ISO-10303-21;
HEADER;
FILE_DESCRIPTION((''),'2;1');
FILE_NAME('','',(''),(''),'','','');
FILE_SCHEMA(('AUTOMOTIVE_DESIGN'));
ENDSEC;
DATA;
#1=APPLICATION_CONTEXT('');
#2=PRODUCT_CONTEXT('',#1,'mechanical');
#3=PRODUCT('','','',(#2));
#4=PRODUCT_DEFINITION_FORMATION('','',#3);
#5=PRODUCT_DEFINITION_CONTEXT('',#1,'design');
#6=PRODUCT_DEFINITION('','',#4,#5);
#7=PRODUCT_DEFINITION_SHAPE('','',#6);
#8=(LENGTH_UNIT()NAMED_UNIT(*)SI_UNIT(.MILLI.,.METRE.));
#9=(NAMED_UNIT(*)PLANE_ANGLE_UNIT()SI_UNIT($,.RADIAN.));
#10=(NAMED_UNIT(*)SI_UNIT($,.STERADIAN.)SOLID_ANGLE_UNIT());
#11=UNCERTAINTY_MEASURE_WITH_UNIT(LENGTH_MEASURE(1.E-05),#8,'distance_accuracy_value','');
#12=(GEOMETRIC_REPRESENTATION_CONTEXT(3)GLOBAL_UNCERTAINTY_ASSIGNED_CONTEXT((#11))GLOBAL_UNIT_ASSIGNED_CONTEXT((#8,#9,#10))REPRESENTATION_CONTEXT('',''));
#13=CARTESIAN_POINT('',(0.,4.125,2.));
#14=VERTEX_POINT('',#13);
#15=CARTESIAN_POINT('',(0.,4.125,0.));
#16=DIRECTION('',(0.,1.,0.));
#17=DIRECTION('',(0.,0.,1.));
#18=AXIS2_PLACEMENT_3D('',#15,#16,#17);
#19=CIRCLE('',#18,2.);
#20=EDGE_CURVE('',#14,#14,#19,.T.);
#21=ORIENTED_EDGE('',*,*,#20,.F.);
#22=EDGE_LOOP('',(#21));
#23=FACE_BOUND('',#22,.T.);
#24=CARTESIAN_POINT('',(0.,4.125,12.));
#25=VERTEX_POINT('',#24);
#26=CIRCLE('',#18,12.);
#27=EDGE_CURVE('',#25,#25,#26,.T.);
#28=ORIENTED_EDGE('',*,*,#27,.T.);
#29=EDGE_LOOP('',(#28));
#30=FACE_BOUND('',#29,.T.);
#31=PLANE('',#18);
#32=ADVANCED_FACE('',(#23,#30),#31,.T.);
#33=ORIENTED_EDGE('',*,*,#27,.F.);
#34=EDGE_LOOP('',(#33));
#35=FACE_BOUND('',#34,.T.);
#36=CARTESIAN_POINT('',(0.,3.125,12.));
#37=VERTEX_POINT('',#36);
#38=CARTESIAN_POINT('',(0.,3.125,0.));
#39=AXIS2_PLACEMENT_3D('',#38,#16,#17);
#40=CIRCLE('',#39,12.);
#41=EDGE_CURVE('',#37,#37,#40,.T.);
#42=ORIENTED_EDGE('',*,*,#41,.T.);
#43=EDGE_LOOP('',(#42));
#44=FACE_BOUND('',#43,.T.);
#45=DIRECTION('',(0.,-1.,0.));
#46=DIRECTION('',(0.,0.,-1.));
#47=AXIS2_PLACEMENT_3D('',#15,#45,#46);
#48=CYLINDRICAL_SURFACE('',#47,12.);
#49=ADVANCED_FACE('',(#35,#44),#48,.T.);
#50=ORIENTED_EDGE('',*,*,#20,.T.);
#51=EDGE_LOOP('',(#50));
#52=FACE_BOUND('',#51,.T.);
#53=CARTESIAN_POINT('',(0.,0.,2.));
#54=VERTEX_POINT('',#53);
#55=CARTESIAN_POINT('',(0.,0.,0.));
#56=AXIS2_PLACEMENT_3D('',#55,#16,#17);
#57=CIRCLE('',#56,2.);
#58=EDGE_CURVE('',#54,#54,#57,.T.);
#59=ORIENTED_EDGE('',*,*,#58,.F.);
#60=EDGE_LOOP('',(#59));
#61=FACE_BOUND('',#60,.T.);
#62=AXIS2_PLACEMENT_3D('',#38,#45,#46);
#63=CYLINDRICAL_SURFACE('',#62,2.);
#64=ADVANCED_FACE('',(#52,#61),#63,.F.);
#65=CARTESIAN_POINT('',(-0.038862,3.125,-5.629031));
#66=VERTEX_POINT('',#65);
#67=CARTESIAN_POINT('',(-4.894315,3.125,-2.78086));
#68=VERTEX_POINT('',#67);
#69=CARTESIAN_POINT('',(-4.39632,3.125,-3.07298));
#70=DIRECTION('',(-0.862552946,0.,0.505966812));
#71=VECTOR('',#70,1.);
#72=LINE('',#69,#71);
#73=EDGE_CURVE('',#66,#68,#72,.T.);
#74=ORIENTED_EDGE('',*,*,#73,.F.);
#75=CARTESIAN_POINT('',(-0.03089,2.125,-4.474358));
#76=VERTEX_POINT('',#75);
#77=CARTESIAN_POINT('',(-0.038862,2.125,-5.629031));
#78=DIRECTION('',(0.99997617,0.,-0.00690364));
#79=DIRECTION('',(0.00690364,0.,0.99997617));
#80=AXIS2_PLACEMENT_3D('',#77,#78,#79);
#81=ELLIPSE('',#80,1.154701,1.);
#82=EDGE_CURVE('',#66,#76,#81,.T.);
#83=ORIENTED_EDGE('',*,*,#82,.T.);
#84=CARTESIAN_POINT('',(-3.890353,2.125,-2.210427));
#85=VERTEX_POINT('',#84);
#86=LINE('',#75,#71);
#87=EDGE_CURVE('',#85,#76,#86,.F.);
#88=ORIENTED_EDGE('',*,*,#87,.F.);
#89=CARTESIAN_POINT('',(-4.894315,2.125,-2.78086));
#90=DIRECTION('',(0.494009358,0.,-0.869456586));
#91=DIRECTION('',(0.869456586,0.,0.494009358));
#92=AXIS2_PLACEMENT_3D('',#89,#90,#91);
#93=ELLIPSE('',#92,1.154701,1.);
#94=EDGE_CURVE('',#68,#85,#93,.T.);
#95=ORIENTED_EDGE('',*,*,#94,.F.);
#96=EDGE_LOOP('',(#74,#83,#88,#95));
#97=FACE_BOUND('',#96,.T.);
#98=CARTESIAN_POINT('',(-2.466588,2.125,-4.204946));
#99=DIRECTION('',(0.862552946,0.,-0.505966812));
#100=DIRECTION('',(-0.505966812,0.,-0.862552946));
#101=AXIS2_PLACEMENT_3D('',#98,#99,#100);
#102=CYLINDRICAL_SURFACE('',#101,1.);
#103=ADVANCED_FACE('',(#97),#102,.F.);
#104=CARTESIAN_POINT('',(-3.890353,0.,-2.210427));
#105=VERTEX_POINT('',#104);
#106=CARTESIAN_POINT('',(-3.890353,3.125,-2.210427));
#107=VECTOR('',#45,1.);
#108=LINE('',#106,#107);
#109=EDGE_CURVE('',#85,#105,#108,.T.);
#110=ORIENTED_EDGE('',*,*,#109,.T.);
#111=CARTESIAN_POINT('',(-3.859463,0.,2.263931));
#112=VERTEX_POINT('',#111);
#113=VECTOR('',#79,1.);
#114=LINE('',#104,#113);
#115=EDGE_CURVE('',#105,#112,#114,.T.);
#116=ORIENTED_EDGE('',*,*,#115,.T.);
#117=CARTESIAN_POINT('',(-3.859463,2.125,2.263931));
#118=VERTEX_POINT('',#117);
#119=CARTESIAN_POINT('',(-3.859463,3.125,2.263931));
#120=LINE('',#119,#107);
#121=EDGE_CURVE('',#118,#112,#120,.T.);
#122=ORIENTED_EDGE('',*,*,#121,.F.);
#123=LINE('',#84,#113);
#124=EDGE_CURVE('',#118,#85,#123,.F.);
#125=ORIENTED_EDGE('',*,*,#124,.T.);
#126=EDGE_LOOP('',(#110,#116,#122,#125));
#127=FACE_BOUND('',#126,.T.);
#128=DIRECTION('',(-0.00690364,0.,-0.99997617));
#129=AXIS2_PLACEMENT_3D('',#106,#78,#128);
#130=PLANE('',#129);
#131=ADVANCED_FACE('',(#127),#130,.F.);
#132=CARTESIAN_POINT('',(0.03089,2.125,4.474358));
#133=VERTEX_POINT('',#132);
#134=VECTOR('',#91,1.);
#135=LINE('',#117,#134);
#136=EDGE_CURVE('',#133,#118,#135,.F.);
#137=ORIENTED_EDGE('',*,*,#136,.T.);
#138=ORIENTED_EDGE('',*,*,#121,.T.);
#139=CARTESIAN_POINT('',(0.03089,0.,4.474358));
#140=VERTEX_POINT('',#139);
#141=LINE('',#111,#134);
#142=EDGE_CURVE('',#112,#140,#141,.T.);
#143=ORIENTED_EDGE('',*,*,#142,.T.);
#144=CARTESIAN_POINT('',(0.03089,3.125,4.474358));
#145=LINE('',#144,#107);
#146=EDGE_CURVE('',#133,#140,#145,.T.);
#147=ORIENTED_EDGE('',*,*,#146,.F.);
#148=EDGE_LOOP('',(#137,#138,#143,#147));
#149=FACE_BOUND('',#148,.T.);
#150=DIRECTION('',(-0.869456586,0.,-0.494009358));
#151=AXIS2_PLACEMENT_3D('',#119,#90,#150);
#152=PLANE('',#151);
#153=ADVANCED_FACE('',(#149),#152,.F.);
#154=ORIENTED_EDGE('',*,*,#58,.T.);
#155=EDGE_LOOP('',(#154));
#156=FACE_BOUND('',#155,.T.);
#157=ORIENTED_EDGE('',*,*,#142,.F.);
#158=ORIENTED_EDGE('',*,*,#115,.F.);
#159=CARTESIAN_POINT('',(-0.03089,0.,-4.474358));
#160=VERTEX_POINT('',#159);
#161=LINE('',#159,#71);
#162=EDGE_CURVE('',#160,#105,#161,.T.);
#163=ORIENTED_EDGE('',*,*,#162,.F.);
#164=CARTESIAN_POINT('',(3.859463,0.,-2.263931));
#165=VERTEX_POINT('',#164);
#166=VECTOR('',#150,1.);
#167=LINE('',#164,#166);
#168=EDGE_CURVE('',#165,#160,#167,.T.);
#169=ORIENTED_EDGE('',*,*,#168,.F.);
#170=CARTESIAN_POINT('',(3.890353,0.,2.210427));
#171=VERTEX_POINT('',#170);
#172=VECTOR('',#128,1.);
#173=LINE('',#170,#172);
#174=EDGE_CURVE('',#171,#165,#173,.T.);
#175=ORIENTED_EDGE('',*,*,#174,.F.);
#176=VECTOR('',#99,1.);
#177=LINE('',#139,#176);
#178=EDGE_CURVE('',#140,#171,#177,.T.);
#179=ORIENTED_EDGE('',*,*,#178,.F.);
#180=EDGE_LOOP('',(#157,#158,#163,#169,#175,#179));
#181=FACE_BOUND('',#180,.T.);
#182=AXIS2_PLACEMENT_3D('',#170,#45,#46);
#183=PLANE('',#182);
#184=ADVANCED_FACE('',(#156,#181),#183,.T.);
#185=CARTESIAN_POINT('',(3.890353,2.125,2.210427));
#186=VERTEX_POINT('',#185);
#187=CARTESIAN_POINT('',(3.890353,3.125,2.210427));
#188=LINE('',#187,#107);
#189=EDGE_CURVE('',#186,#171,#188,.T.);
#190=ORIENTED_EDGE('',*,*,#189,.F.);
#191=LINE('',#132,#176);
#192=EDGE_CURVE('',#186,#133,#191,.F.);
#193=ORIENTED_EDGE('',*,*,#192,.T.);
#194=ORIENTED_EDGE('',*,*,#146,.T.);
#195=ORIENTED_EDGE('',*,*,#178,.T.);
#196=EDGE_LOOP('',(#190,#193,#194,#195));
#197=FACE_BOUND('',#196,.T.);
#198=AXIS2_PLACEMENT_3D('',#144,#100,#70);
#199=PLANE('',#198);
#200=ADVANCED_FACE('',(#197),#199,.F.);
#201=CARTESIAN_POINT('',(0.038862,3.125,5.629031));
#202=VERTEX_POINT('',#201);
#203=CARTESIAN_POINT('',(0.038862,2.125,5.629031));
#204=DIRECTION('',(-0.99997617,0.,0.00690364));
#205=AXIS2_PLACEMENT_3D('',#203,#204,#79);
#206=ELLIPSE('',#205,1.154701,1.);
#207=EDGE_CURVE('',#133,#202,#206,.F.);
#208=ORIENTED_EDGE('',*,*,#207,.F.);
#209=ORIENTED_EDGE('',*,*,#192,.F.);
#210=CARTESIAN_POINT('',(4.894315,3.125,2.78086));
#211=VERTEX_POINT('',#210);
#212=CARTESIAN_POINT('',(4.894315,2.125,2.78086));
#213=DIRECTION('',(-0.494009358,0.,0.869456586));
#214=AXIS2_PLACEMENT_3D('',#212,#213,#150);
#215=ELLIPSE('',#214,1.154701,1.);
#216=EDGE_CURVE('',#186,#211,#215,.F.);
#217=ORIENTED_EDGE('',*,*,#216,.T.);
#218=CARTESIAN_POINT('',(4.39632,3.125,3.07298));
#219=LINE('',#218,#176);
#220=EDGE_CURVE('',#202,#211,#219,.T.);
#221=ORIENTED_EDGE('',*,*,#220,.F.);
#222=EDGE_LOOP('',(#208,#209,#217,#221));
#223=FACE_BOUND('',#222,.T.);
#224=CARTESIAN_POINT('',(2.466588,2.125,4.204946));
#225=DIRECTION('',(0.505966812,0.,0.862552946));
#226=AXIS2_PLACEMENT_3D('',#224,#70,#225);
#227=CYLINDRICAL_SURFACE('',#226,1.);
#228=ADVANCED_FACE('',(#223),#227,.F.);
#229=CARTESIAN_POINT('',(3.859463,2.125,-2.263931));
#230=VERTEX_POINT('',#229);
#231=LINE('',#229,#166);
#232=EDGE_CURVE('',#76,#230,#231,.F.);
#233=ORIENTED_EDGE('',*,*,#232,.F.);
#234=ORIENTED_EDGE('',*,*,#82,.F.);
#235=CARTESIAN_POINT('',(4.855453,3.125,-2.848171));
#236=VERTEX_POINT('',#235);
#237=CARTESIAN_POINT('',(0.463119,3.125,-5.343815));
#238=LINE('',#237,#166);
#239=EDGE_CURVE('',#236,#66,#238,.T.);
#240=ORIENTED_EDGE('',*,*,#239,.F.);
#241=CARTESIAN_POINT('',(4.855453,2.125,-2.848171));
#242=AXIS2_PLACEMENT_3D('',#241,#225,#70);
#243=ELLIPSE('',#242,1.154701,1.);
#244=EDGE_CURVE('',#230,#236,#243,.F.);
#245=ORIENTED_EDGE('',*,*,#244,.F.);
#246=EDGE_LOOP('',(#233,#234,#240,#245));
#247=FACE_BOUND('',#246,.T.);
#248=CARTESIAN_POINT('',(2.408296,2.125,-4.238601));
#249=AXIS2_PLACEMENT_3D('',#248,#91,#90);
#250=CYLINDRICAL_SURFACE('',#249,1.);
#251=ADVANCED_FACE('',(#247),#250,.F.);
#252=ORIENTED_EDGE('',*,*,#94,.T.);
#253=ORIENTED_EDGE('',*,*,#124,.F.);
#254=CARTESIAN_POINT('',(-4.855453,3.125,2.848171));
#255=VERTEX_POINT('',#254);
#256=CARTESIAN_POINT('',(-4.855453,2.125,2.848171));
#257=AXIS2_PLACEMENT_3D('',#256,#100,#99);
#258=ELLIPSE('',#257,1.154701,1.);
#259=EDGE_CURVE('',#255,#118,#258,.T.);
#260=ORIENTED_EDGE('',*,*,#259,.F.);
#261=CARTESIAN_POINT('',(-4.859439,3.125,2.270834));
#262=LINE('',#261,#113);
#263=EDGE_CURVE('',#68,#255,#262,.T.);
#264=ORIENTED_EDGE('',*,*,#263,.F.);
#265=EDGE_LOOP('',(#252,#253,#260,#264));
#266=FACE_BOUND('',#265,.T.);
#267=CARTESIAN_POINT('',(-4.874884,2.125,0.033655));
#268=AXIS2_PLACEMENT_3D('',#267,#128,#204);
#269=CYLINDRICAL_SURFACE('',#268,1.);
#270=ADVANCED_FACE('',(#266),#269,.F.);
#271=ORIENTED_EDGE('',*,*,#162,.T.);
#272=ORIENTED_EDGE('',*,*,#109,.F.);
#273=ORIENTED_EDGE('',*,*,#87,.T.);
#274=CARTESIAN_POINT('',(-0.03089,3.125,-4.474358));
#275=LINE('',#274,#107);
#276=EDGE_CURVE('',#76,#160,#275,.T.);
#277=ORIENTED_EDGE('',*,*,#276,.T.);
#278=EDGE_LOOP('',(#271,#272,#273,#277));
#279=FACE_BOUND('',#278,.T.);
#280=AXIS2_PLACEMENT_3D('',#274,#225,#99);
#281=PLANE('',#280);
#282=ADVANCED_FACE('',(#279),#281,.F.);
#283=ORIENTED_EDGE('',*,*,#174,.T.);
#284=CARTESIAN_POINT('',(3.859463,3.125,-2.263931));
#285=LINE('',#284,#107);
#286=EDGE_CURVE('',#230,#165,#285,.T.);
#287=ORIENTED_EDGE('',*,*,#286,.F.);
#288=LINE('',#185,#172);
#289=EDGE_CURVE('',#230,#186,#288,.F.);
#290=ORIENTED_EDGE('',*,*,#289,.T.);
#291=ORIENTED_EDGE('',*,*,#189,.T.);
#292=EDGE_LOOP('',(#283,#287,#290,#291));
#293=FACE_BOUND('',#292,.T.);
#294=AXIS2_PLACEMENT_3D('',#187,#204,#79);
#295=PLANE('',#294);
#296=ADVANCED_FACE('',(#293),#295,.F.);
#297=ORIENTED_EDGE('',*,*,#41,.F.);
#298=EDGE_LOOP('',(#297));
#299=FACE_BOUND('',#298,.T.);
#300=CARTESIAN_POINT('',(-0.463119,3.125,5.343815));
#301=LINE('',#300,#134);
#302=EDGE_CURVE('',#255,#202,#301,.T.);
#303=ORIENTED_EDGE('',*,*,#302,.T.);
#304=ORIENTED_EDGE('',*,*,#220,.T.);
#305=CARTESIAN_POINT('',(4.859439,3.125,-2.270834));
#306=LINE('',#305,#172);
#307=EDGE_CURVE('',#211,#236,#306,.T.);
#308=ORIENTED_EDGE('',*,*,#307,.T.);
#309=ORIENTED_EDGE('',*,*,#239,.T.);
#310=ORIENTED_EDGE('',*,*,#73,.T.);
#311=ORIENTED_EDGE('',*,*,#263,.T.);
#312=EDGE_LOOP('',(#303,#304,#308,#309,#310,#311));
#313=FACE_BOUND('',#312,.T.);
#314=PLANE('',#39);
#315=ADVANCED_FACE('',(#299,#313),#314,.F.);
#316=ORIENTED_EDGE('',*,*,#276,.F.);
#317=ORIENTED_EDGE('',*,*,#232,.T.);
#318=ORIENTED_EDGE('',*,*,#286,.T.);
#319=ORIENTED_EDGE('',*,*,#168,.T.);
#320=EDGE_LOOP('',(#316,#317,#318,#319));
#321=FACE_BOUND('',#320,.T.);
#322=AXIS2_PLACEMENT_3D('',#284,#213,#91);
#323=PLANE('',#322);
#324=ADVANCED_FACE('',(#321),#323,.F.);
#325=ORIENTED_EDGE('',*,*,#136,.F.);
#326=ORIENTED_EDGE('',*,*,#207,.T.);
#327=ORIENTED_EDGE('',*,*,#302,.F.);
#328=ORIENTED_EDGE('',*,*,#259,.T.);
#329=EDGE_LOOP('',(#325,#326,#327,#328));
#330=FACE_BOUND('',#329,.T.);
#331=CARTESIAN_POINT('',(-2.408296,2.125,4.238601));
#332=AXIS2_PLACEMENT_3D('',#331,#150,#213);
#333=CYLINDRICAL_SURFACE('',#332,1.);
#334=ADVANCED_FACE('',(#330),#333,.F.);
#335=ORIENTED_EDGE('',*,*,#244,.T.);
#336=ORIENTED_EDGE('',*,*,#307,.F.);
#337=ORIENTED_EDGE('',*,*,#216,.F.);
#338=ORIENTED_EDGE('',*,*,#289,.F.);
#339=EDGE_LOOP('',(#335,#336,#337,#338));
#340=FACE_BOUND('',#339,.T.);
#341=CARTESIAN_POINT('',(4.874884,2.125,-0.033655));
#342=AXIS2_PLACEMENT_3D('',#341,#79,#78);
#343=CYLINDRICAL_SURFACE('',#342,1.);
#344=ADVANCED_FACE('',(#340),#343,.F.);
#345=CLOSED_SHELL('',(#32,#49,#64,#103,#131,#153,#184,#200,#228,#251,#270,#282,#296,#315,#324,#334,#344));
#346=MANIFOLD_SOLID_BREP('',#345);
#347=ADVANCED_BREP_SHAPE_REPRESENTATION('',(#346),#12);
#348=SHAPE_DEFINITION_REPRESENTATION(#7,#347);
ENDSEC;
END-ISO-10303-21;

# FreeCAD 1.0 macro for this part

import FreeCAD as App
import Part
import Sketcher
from FreeCAD import Vector
Q = App.Units.Quantity


def edges_at(feature, points):
    """Names of the edges that pass closest to the given points."""
    edges = feature.Shape.Edges
    near = lambda p: min(range(len(edges)), key=lambda i: edges[i].distToShape(Part.Vertex(*p))[0])
    return sorted({f"Edge{near(p) + 1}" for p in points})


def add_polygon(sketch, points):
    """Adds a closed chain of lines whose ends are joined by coincident constraints."""
    first, n = sketch.GeometryCount, len(points)
    for a, b in zip(points, points[1:] + points[:1]):
        sketch.addGeometry(Part.LineSegment(App.Vector(*a, 0), App.Vector(*b, 0)), False)
    for i in range(n):
        sketch.addConstraint(Sketcher.Constraint("Coincident", first + i, 2, first + (i + 1) % n, 1))

doc = App.newDocument("Part")
body = doc.addObject("PartDesign::Body", "Body")

# Sketch on XZ plane
sketch1 = body.newObject("Sketcher::SketchObject", "Sketch")
sketch1.AttachmentSupport = (doc.getObject("XZ_Plane"), [""])
sketch1.MapMode = "FlatFace"
add_polygon(sketch1, [(3.859463, -2.263931), (-0.03089, -4.474358), (-3.890353, -2.210427), (-3.859463, 2.263931), (0.03089, 4.474358), (3.890353, 2.210427)])  # lines 0-5
sketch1.addGeometry(Part.Circle(Vector(0, 0, 0), Vector(0, 0, 1), 2), False)  # 6
sketch1.addConstraint([
    Sketcher.Constraint("Coincident", 6, 3, -1, 1),
    Sketcher.Constraint("Symmetric", 0, 2, 3, 2, -1, 1),
    Sketcher.Constraint("Symmetric", 1, 2, 4, 2, -1, 1),
    Sketcher.Constraint("Symmetric", 2, 2, 5, 2, -1, 1),
    Sketcher.Constraint("Equal", 0, 1),
    Sketcher.Constraint("Equal", 1, 2),
    Sketcher.Constraint("Diameter", 6, Q("4 mm")),
    Sketcher.Constraint("DistanceX", 0, 2, -1, 1, Q("0.03089 mm")),
    Sketcher.Constraint("DistanceY", -1, 1, 2, 2, Q("2.263931 mm")),
    Sketcher.Constraint("DistanceY", 0, 2, 1, 2, Q("2.263931 mm")),
    Sketcher.Constraint("DistanceX", 1, 2, 2, 2, Q("0.03089 mm")),
])
pad1 = body.newObject("PartDesign::Pad", "Pad")
pad1.Profile = sketch1
pad1.Length = 3.125
pad1.Reversed = True

# Sketch on XZ plane
sketch2 = body.newObject("Sketcher::SketchObject", "Sketch001")
sketch2.AttachmentSupport = (doc.getObject("XZ_Plane"), [""])
sketch2.MapMode = "FlatFace"
sketch2.AttachmentOffset = App.Placement(Vector(0, 0, -3.125), App.Rotation())
sketch2.addGeometry([
    Part.Circle(Vector(0, 0, 0), Vector(0, 0, 1), 12),
    Part.Circle(Vector(0, 0, 0), Vector(0, 0, 1), 2),
], False)
sketch2.addConstraint([
    Sketcher.Constraint("Coincident", 0, 3, -1, 1),
    Sketcher.Constraint("Coincident", 1, 3, -1, 1),
    Sketcher.Constraint("Diameter", 0, Q("24 mm")),
    Sketcher.Constraint("Diameter", 1, Q("4 mm")),
])
pad2 = body.newObject("PartDesign::Pad", "Pad001")
pad2.Profile = sketch2
pad2.Length = 1
pad2.Reversed = True
doc.recompute()

fillet = body.newObject("PartDesign::Fillet", "Fillet")
fillet.Base = (pad2, edges_at(pad2, [
    (-1.961, 3.125, -3.342),
    (-3.875, 3.125, 0.027),
    (-1.914, 3.125, 3.369),
    (1.961, 3.125, 3.342),
    (3.875, 3.125, -0.027),
    (1.914, 3.125, -3.369),
]))
fillet.Radius = 1

doc.recompute()
